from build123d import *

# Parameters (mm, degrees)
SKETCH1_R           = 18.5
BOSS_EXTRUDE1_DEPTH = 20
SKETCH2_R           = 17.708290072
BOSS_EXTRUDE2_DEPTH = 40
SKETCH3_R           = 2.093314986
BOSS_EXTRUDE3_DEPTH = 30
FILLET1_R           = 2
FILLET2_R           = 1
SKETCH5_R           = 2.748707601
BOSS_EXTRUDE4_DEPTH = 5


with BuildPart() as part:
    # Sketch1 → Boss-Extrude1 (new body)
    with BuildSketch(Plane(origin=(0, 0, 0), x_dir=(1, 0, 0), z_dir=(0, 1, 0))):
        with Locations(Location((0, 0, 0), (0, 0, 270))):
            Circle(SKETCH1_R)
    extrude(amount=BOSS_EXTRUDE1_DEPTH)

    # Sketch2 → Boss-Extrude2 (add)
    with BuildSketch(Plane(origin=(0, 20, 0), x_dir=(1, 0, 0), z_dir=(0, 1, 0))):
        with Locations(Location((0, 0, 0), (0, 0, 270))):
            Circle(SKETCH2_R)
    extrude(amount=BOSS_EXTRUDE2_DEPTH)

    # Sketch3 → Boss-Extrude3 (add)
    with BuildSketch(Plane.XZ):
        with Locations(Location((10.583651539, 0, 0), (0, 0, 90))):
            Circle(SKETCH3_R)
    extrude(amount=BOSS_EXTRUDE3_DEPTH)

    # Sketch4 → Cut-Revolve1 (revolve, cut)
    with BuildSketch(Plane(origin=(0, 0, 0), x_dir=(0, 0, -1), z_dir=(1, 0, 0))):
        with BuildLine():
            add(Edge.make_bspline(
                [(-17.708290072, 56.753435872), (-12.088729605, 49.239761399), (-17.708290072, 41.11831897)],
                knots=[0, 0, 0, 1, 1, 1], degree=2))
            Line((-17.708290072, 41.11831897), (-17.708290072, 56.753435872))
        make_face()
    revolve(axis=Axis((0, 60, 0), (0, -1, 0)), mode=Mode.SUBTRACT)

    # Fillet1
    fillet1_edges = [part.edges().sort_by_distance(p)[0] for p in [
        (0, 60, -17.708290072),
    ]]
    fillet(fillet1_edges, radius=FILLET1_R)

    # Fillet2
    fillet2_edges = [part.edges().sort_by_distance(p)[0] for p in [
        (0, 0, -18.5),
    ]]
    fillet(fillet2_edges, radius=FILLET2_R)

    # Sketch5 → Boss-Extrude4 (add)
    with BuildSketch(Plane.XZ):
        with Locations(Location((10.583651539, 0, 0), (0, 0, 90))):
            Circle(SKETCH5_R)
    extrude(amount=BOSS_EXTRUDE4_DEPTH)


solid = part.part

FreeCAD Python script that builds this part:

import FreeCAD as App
import Part
import Sketcher
from FreeCAD import Vector
Q = App.Units.Quantity


def edges_at(feature, points):
    """Names of the edges that pass closest to the given points."""
    edges = feature.Shape.Edges
    near = lambda p: min(range(len(edges)), key=lambda i: edges[i].distToShape(Part.Vertex(*p))[0])
    return sorted({f"Edge{near(p) + 1}" for p in points})

doc = App.newDocument("Part")
body = doc.addObject("PartDesign::Body", "Body")

# Sketch on XZ plane
sketch1 = body.newObject("Sketcher::SketchObject", "Sketch")
sketch1.AttachmentSupport = (doc.getObject("XZ_Plane"), [""])
sketch1.MapMode = "FlatFace"
sketch1.addGeometry(Part.Circle(Vector(0, 0, 0), Vector(0, 0, 1), 18), False)
sketch1.addConstraint([
    Sketcher.Constraint("Coincident", 0, 3, -1, 1),
    Sketcher.Constraint("Diameter", 0, Q("37 mm")),
])
pad1 = body.newObject("PartDesign::Pad", "Pad")
pad1.Profile = sketch1
pad1.Length = 20
pad1.Reversed = True

# Sketch on XZ plane
sketch2 = body.newObject("Sketcher::SketchObject", "Sketch001")
sketch2.AttachmentSupport = (doc.getObject("XZ_Plane"), [""])
sketch2.MapMode = "FlatFace"
sketch2.AttachmentOffset = App.Placement(Vector(0, 0, -20), App.Rotation())
sketch2.addGeometry(Part.Circle(Vector(0, 0, 0), Vector(0, 0, 1), 18), False)
sketch2.addConstraint([
    Sketcher.Constraint("Coincident", 0, 3, -1, 1),
    Sketcher.Constraint("Diameter", 0, Q("35.41658 mm")),
])
pad2 = body.newObject("PartDesign::Pad", "Pad001")
pad2.Profile = sketch2
pad2.Length = 40
pad2.Reversed = True

# Sketch on XZ plane
sketch3 = body.newObject("Sketcher::SketchObject", "Sketch002")
sketch3.AttachmentSupport = (doc.getObject("XZ_Plane"), [""])
sketch3.MapMode = "FlatFace"
sketch3.addGeometry(Part.Circle(Vector(10.6, 0, 0), Vector(0, 0, 1), 2.1), False)
sketch3.addConstraint([
    Sketcher.Constraint("PointOnObject", 0, 3, -1),
    Sketcher.Constraint("Diameter", 0, Q("4.18663 mm")),
    Sketcher.Constraint("DistanceX", -1, 1, 0, 3, Q("10.583652 mm")),
])
pad3 = body.newObject("PartDesign::Pad", "Pad002")
pad3.Profile = sketch3
pad3.Length = 30

# Sketch on YZ plane
sketch4 = body.newObject("Sketcher::SketchObject", "Sketch003")
sketch4.AttachmentSupport = (doc.getObject("YZ_Plane"), [""])
sketch4.MapMode = "FlatFace"
sketch4.addGeometry([
    Part.BSplineCurve([Vector(56.753436, 17.70829, 0), Vector(49.239761, 12.08873, 0), Vector(41.118319, 17.70829, 0)], [3, 3], [0, 1], False, 2, [1, 1, 1], False),
    Part.LineSegment(Vector(56.753436, 17.70829, 0), Vector(41.118319, 17.70829, 0)),
], False)
sketch4.addConstraint([
    Sketcher.Constraint("Block", 0),
    Sketcher.Constraint("Coincident", 0, 1, 1, 1),
    Sketcher.Constraint("Coincident", 1, 2, 0, 2),
])
groove = body.newObject("PartDesign::Groove", "Groove")
groove.Profile = sketch4
groove.ReferenceAxis = (sketch4, ["H_Axis"])
groove.Angle = 360
doc.recompute()

fillet = body.newObject("PartDesign::Fillet", "Fillet")
fillet.Base = (groove, edges_at(groove, [(0, 60, -17.708)]))
fillet.Radius = 2
doc.recompute()

fillet2 = body.newObject("PartDesign::Fillet", "Fillet001")
fillet2.Base = (fillet, edges_at(fillet, [(0, 0, -18.5)]))
fillet2.Radius = 1

# Sketch on XZ plane
sketch5 = body.newObject("Sketcher::SketchObject", "Sketch004")
sketch5.AttachmentSupport = (doc.getObject("XZ_Plane"), [""])
sketch5.MapMode = "FlatFace"
sketch5.addGeometry(Part.Circle(Vector(10.6, 0, 0), Vector(0, 0, 1), 2.7), False)
sketch5.addConstraint([
    Sketcher.Constraint("PointOnObject", 0, 3, -1),
    Sketcher.Constraint("Diameter", 0, Q("5.497415 mm")),
    Sketcher.Constraint("DistanceX", -1, 1, 0, 3, Q("10.583652 mm")),
])
pad4 = body.newObject("PartDesign::Pad", "Pad003")
pad4.Profile = sketch5
pad4.Length = 5

doc.recompute()
